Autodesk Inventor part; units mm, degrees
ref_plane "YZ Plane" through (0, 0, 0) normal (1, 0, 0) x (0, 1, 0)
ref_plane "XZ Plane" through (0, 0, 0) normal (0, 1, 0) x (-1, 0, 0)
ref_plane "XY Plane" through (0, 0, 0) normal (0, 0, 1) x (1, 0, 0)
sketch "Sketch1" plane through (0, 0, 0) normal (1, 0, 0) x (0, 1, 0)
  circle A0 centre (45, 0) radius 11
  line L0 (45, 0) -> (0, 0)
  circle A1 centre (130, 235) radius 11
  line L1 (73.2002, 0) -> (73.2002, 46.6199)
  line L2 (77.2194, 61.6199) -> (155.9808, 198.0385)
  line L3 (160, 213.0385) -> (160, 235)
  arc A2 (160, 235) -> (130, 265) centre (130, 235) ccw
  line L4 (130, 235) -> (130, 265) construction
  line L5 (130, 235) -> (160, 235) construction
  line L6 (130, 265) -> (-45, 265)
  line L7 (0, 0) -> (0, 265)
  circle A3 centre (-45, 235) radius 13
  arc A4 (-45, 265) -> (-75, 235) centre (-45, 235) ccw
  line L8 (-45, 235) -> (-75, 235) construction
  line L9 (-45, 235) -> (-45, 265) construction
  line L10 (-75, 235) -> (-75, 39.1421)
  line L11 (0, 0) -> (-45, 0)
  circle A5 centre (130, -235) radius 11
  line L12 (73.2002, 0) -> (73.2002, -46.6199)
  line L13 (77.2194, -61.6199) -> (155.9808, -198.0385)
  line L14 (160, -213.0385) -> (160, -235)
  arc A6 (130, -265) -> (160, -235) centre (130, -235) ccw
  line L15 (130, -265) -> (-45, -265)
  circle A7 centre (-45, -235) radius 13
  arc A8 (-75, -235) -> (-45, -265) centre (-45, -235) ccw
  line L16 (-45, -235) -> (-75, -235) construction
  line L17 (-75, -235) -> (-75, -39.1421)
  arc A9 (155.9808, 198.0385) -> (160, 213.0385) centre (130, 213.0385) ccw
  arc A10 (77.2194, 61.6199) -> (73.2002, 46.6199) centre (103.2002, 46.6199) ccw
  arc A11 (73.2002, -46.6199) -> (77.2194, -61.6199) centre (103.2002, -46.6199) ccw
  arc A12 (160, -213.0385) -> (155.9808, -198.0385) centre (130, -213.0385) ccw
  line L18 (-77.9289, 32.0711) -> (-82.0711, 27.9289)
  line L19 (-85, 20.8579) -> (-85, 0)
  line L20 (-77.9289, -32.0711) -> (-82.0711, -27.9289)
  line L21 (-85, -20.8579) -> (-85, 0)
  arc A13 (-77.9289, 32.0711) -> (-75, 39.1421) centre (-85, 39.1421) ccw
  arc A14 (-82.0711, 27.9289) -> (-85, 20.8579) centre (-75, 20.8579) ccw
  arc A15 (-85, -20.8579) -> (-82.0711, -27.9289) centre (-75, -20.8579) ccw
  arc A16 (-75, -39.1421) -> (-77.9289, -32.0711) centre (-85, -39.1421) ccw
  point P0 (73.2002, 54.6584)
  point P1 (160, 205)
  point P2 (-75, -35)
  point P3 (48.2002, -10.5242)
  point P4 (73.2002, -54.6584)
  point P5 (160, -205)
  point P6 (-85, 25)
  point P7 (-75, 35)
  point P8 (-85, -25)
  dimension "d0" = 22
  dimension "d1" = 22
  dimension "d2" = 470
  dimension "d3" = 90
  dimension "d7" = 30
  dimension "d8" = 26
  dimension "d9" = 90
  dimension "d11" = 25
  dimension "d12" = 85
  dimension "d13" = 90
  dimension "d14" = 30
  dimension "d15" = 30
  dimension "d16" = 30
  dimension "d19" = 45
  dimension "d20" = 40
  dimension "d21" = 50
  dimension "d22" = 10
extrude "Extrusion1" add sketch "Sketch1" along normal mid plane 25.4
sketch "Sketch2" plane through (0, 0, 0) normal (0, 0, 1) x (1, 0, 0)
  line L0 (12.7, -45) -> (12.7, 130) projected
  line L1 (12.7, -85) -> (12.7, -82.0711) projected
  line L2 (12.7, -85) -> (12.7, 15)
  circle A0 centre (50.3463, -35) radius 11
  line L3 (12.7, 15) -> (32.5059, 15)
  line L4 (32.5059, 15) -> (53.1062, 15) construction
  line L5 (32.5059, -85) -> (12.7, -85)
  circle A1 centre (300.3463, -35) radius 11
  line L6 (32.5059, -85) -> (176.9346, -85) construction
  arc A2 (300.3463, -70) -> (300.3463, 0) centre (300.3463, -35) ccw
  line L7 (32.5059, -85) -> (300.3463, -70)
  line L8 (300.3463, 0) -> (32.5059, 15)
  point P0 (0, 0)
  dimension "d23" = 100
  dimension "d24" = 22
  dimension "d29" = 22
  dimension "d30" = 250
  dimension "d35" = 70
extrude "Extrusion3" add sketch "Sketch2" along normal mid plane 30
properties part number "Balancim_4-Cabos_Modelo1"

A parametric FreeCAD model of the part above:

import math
import FreeCAD as App
import Part
import Sketcher

V = App.Vector
Q = App.Units.Quantity

doc = App.newDocument("Part")
body = doc.addObject("PartDesign::Body", "Body")

# Sketch on YZ plane
sketch1 = body.newObject("Sketcher::SketchObject", "Sketch")
sketch1.AttachmentSupport = (doc.getObject("YZ_Plane"), [""])
sketch1.MapMode = "FlatFace"
sketch1.addGeometry(Part.LineSegment(V(130, 265, 0), V(0, 265, 0)), False)
sketch1.addGeometry(Part.LineSegment(V(0, 265, 0), V(-45, 265, 0)), False)
sketch1.addGeometry(Part.ArcOfCircle(Part.Circle(V(-45, 235, 0), V(0, 0, 1), 30), math.radians(90), math.radians(180)), False)
sketch1.addGeometry(Part.LineSegment(V(-75, 235, 0), V(-75, 39, 0)), False)
sketch1.addGeometry(Part.ArcOfCircle(Part.Circle(V(-85, 39, 0), V(0, 0, 1), 10), math.radians(-45), math.radians(0)), False)
sketch1.addGeometry(Part.LineSegment(V(-78, 32, 0), V(-82, 28, 0)), False)
sketch1.addGeometry(Part.ArcOfCircle(Part.Circle(V(-75, 21, 0), V(0, 0, 1), 10), math.radians(135), math.radians(180)), False)
sketch1.addGeometry(Part.LineSegment(V(-85, 21, 0), V(-85, -21, 0)), False)
sketch1.addGeometry(Part.ArcOfCircle(Part.Circle(V(-75, -21, 0), V(0, 0, 1), 10), math.radians(180), math.radians(225)), False)
sketch1.addGeometry(Part.LineSegment(V(-82, -28, 0), V(-78, -32, 0)), False)
sketch1.addGeometry(Part.ArcOfCircle(Part.Circle(V(-85, -39, 0), V(0, 0, 1), 10), math.radians(0), math.radians(45)), False)
sketch1.addGeometry(Part.LineSegment(V(-75, -39, 0), V(-75, -235, 0)), False)
sketch1.addGeometry(Part.ArcOfCircle(Part.Circle(V(-45, -235, 0), V(0, 0, 1), 30), math.radians(180), math.radians(270)), False)
sketch1.addGeometry(Part.LineSegment(V(-45, -265, 0), V(130, -265, 0)), False)
sketch1.addGeometry(Part.ArcOfCircle(Part.Circle(V(130, -235, 0), V(0, 0, 1), 30), math.radians(-90), math.radians(0)), False)
sketch1.addGeometry(Part.LineSegment(V(160, -235, 0), V(160, -213, 0)), False)
sketch1.addGeometry(Part.ArcOfCircle(Part.Circle(V(130, -213, 0), V(0, 0, 1), 30), math.radians(0), math.radians(30)), False)
sketch1.addGeometry(Part.LineSegment(V(156, -198, 0), V(77, -62, 0)), False)
sketch1.addGeometry(Part.ArcOfCircle(Part.Circle(V(103, -47, 0), V(0, 0, 1), 30), math.radians(180), math.radians(210)), False)
sketch1.addGeometry(Part.LineSegment(V(73, -47, 0), V(73, 47, 0)), False)
sketch1.addGeometry(Part.ArcOfCircle(Part.Circle(V(103, 47, 0), V(0, 0, 1), 30), math.radians(150), math.radians(180)), False)
sketch1.addGeometry(Part.LineSegment(V(77, 62, 0), V(156, 198, 0)), False)
sketch1.addGeometry(Part.ArcOfCircle(Part.Circle(V(130, 213, 0), V(0, 0, 1), 30), math.radians(-30), math.radians(0)), False)
sketch1.addGeometry(Part.LineSegment(V(160, 213, 0), V(160, 235, 0)), False)
sketch1.addGeometry(Part.ArcOfCircle(Part.Circle(V(130, 235, 0), V(0, 0, 1), 30), math.radians(0), math.radians(90)), False)
sketch1.addGeometry(Part.Circle(V(-45, -235, 0), V(0, 0, 1), 13), False)
sketch1.addGeometry(Part.Circle(V(130, -235, 0), V(0, 0, 1), 11), False)
sketch1.addGeometry(Part.Circle(V(-45, 235, 0), V(0, 0, 1), 13), False)
sketch1.addGeometry(Part.Circle(V(45, 0, 0), V(0, 0, 1), 11), False)
sketch1.addGeometry(Part.Circle(V(130, 235, 0), V(0, 0, 1), 11), False)
sketch1.addConstraint(Sketcher.Constraint("Coincident", 0, 2, 1, 1))
sketch1.addConstraint(Sketcher.Constraint("Tangent", 1, 2, 2, 1))
sketch1.addConstraint(Sketcher.Constraint("Tangent", 2, 2, 3, 1))
sketch1.addConstraint(Sketcher.Constraint("Tangent", 3, 2, 4, 2))
sketch1.addConstraint(Sketcher.Constraint("Tangent", 4, 1, 5, 1))
sketch1.addConstraint(Sketcher.Constraint("Tangent", 5, 2, 6, 1))
sketch1.addConstraint(Sketcher.Constraint("Tangent", 6, 2, 7, 1))
sketch1.addConstraint(Sketcher.Constraint("Tangent", 7, 2, 8, 1))
sketch1.addConstraint(Sketcher.Constraint("Tangent", 8, 2, 9, 1))
sketch1.addConstraint(Sketcher.Constraint("Tangent", 9, 2, 10, 2))
sketch1.addConstraint(Sketcher.Constraint("Tangent", 10, 1, 11, 1))
sketch1.addConstraint(Sketcher.Constraint("Tangent", 11, 2, 12, 1))
sketch1.addConstraint(Sketcher.Constraint("Tangent", 12, 2, 13, 1))
sketch1.addConstraint(Sketcher.Constraint("Tangent", 13, 2, 14, 1))
sketch1.addConstraint(Sketcher.Constraint("Tangent", 14, 2, 15, 1))
sketch1.addConstraint(Sketcher.Constraint("Tangent", 15, 2, 16, 1))
sketch1.addConstraint(Sketcher.Constraint("Tangent", 16, 2, 17, 1))
sketch1.addConstraint(Sketcher.Constraint("Tangent", 17, 2, 18, 2))
sketch1.addConstraint(Sketcher.Constraint("Tangent", 18, 1, 19, 1))
sketch1.addConstraint(Sketcher.Constraint("Tangent", 19, 2, 20, 2))
sketch1.addConstraint(Sketcher.Constraint("Tangent", 20, 1, 21, 1))
sketch1.addConstraint(Sketcher.Constraint("Tangent", 21, 2, 22, 1))
sketch1.addConstraint(Sketcher.Constraint("Tangent", 22, 2, 23, 1))
sketch1.addConstraint(Sketcher.Constraint("Tangent", 23, 2, 24, 1))
sketch1.addConstraint(Sketcher.Constraint("Tangent", 24, 2, 0, 1))
sketch1.addConstraint(Sketcher.Constraint("Horizontal", 0))
sketch1.addConstraint(Sketcher.Constraint("Horizontal", 1))
sketch1.addConstraint(Sketcher.Constraint("Vertical", 3))
sketch1.addConstraint(Sketcher.Constraint("Vertical", 7))
sketch1.addConstraint(Sketcher.Constraint("Vertical", 11))
sketch1.addConstraint(Sketcher.Constraint("Horizontal", 13))
sketch1.addConstraint(Sketcher.Constraint("Vertical", 15))
sketch1.addConstraint(Sketcher.Constraint("Vertical", 19))
sketch1.addConstraint(Sketcher.Constraint("Vertical", 23))
sketch1.addConstraint(Sketcher.Constraint("Coincident", 25, 3, 12, 3))
sketch1.addConstraint(Sketcher.Constraint("Coincident", 26, 3, 14, 3))
sketch1.addConstraint(Sketcher.Constraint("Coincident", 27, 3, 2, 3))
sketch1.addConstraint(Sketcher.Constraint("Coincident", 29, 3, 24, 3))
sketch1.addConstraint(Sketcher.Constraint("Equal", 4, 6))
sketch1.addConstraint(Sketcher.Constraint("Equal", 6, 8))
sketch1.addConstraint(Sketcher.Constraint("Equal", 8, 10))
sketch1.addConstraint(Sketcher.Constraint("Equal", 2, 12))
sketch1.addConstraint(Sketcher.Constraint("Equal", 12, 14))
sketch1.addConstraint(Sketcher.Constraint("Equal", 14, 16))
sketch1.addConstraint(Sketcher.Constraint("Equal", 16, 18))
sketch1.addConstraint(Sketcher.Constraint("Equal", 18, 20))
sketch1.addConstraint(Sketcher.Constraint("Equal", 20, 22))
sketch1.addConstraint(Sketcher.Constraint("Equal", 22, 24))
sketch1.addConstraint(Sketcher.Constraint("Equal", 25, 27))
sketch1.addConstraint(Sketcher.Constraint("Equal", 26, 28))
sketch1.addConstraint(Sketcher.Constraint("Equal", 28, 29))
sketch1.addConstraint(Sketcher.Constraint("Symmetric", 4, 3, 10, 3, -1))
sketch1.addConstraint(Sketcher.Constraint("Symmetric", 16, 3, 22, 3, -1))
sketch1.addConstraint(Sketcher.Constraint("PointOnObject", 28, 3, -1))
sketch1.addConstraint(Sketcher.Constraint("PointOnObject", 0, 2, -2))
sketch1.addConstraint(Sketcher.Constraint("Perpendicular", 5, 9))
sketch1.addConstraint(Sketcher.Constraint("Vertical", 8, 3, 2, 2))
sketch1.addConstraint(Sketcher.Constraint("Vertical", 5, 2, 8, 2))
sketch1.addConstraint(Sketcher.Constraint("Vertical", 17, 2, 20, 1))
sketch1.addConstraint(Sketcher.Constraint("Equal", 3, 11))
sketch1.addConstraint(Sketcher.Constraint("Diameter", 25, 26.0))
sketch1.addConstraint(Sketcher.Constraint("Diameter", 26, 22.0))
sketch1.addConstraint(Sketcher.Constraint("Radius", 2, 30.0))
sketch1.addConstraint(Sketcher.Constraint("Radius", 4, 10.0))
sketch1.addConstraint(Sketcher.Constraint("DistanceX", 1, 2, 1, 1, 45.0))
sketch1.addConstraint(Sketcher.Constraint("DistanceX", -1, 1, 28, 3, 45.0))
sketch1.addConstraint(Sketcher.Constraint("DistanceY", 12, 3, 2, 3, 470.0))
sketch1.addConstraint(Sketcher.Constraint("DistanceX", 0, 2, 0, 1, 130.0))
sketch1.addConstraint(Sketcher.Constraint("Angle", 17, Q("120 deg")))
sketch1.addConstraint(Sketcher.Constraint("DistanceY", 8, 3, 4, 3, 60.0))
sketch1.addConstraint(Sketcher.Constraint("DistanceY", 18, 3, -1, 1, 46.62))
sketch1.addConstraint(Sketcher.Constraint("DistanceY", 15, 1, 15, 2, 21.9615))
pad1 = body.newObject("PartDesign::Pad", "Pad")
pad1.Profile = sketch1
pad1.Length = 25.4
pad1.Midplane = True

# Sketch on XY plane
sketch2 = body.newObject("Sketcher::SketchObject", "Sketch001")
sketch2.AttachmentSupport = (doc.getObject("XY_Plane"), [""])
sketch2.MapMode = "FlatFace"
sketch2.addGeometry(Part.LineSegment(V(13, 15, 0), V(13, -85, 0)), False)
sketch2.addGeometry(Part.LineSegment(V(13, -85, 0), V(33, -85, 0)), False)
sketch2.addGeometry(Part.LineSegment(V(33, -85, 0), V(300, -70, 0)), False)
sketch2.addGeometry(Part.ArcOfCircle(Part.Circle(V(300, -35, 0), V(0, 0, 1), 35), math.radians(-90), math.radians(90)), False)
sketch2.addGeometry(Part.LineSegment(V(300, 0, 0), V(33, 15, 0)), False)
sketch2.addGeometry(Part.LineSegment(V(33, 15, 0), V(13, 15, 0)), False)
sketch2.addGeometry(Part.Circle(V(50, -35, 0), V(0, 0, 1), 11), False)
sketch2.addGeometry(Part.Circle(V(300, -35, 0), V(0, 0, 1), 11), False)
sketch2.addConstraint(Sketcher.Constraint("Coincident", 0, 2, 1, 1))
sketch2.addConstraint(Sketcher.Constraint("Coincident", 1, 2, 2, 1))
sketch2.addConstraint(Sketcher.Constraint("Coincident", 2, 2, 3, 1))
sketch2.addConstraint(Sketcher.Constraint("Coincident", 3, 2, 4, 1))
sketch2.addConstraint(Sketcher.Constraint("Coincident", 4, 2, 5, 1))
sketch2.addConstraint(Sketcher.Constraint("Coincident", 5, 2, 0, 1))
sketch2.addConstraint(Sketcher.Constraint("Vertical", 0))
sketch2.addConstraint(Sketcher.Constraint("Horizontal", 1))
sketch2.addConstraint(Sketcher.Constraint("Horizontal", 5))
sketch2.addConstraint(Sketcher.Constraint("Coincident", 7, 3, 3, 3))
sketch2.addConstraint(Sketcher.Constraint("Equal", 6, 7))
sketch2.addConstraint(Sketcher.Constraint("PointOnObject", 3, 2, -1))
sketch2.addConstraint(Sketcher.Constraint("Horizontal", 3, 3, 6, 3))
sketch2.addConstraint(Sketcher.Constraint("Vertical", 7, 3, 2, 2))
sketch2.addConstraint(Sketcher.Constraint("Vertical", 2, 2, 3, 2))
sketch2.addConstraint(Sketcher.Constraint("Vertical", 1, 2, 4, 2))
sketch2.addConstraint(Sketcher.Constraint("Equal", 2, 4))
sketch2.addConstraint(Sketcher.Constraint("Diameter", 6, 22.0))
sketch2.addConstraint(Sketcher.Constraint("Radius", 3, 35.0))
sketch2.addConstraint(Sketcher.Constraint("DistanceY", 0, 2, 0, 1, 100.0))
sketch2.addConstraint(Sketcher.Constraint("DistanceX", 6, 3, 3, 3, 250.0))
sketch2.addConstraint(Sketcher.Constraint("DistanceX", -1, 1, 0, 2, 12.7))
sketch2.addConstraint(Sketcher.Constraint("Distance", 2, 268.26))
sketch2.addConstraint(Sketcher.Constraint("DistanceX", 1, 1, 1, 2, 19.806))
pad2 = body.newObject("PartDesign::Pad", "Pad001")
pad2.Profile = sketch2
pad2.Length = 30
pad2.Midplane = True

doc.recompute()
